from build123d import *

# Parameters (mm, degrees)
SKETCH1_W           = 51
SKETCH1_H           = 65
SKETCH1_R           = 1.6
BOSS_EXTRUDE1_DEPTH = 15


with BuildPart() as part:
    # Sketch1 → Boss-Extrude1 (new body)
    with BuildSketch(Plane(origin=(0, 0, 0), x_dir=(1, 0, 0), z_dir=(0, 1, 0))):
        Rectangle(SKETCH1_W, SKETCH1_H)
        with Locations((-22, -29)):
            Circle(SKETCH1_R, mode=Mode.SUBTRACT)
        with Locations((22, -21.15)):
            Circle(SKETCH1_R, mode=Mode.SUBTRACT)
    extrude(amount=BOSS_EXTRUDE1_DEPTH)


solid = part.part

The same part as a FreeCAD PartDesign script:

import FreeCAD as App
import Part
import Sketcher
from FreeCAD import Vector


def add_polygon(sketch, points):
    """Adds a closed chain of lines whose ends are joined by coincident constraints."""
    first, n = sketch.GeometryCount, len(points)
    for a, b in zip(points, points[1:] + points[:1]):
        sketch.addGeometry(Part.LineSegment(App.Vector(*a, 0), App.Vector(*b, 0)), False)
    for i in range(n):
        sketch.addConstraint(Sketcher.Constraint("Coincident", first + i, 2, first + (i + 1) % n, 1))

doc = App.newDocument("Part")
body = doc.addObject("PartDesign::Body", "Body")

# Sketch on XZ plane
sketch1 = body.newObject("Sketcher::SketchObject", "Sketch")
sketch1.AttachmentSupport = (doc.getObject("XZ_Plane"), [""])
sketch1.MapMode = "FlatFace"
add_polygon(sketch1, [(-25.5, -32.5), (-25.5, 32.5), (25.5, 32.5), (25.5, -32.5)])  # lines 0-3
sketch1.addGeometry(Part.Circle(Vector(-22, 29, 0), Vector(0, 0, 1), 1.6), False)  # 4
sketch1.addGeometry(Part.Circle(Vector(22, 21.15, 0), Vector(0, 0, 1), 1.6), False)  # 5
sketch1.addConstraint([
    Sketcher.Constraint("Vertical", 0),
    Sketcher.Constraint("Horizontal", 1),
    Sketcher.Constraint("Vertical", 2),
    Sketcher.Constraint("Horizontal", 3),
    Sketcher.Constraint("Equal", 4, 5),
    Sketcher.Constraint("Symmetric", 0, 2, 2, 2, -1, 1),
    Sketcher.Constraint("Diameter", 4, 3.2),
    Sketcher.Constraint("DistanceX", 1, 1, 1, 2, 51.0),
    Sketcher.Constraint("DistanceY", 0, 1, 0, 2, 65.0),
    Sketcher.Constraint("DistanceX", 4, 3, -1, 1, 22.0),
    Sketcher.Constraint("DistanceY", -1, 1, 4, 3, 29.0),
    Sketcher.Constraint("DistanceX", -1, 1, 5, 3, 22.0),
    Sketcher.Constraint("DistanceY", -1, 1, 5, 3, 21.15),
])
pad1 = body.newObject("PartDesign::Pad", "Pad")
pad1.Profile = sketch1
pad1.Length = 15
pad1.Reversed = True

doc.recompute()
